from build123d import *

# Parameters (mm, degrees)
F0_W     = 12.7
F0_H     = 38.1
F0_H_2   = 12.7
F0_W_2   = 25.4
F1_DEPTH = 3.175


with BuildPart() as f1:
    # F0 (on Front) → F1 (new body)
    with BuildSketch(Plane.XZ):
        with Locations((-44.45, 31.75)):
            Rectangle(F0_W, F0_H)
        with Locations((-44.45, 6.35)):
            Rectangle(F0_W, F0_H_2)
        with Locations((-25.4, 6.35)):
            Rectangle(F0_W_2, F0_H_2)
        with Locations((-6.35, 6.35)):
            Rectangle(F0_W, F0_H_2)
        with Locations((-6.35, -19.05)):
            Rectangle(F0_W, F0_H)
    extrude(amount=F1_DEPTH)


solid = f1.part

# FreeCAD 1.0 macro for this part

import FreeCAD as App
import Part
import Sketcher
Q = App.Units.Quantity


def add_polygon(sketch, points):
    """Adds a closed chain of lines whose ends are joined by coincident constraints."""
    first, n = sketch.GeometryCount, len(points)
    for a, b in zip(points, points[1:] + points[:1]):
        sketch.addGeometry(Part.LineSegment(App.Vector(*a, 0), App.Vector(*b, 0)), False)
    for i in range(n):
        sketch.addConstraint(Sketcher.Constraint("Coincident", first + i, 2, first + (i + 1) % n, 1))

doc = App.newDocument("Part")
body = doc.addObject("PartDesign::Body", "Body")

# Sketch on XZ plane
sketch1 = body.newObject("Sketcher::SketchObject", "Sketch")
sketch1.AttachmentSupport = (doc.getObject("XZ_Plane"), [""])
sketch1.MapMode = "FlatFace"
add_polygon(sketch1, [(-51, 51), (-51, 0), (-13, 0), (-13, -38), (0, -38), (0, 13), (-38, 13), (-38, 51)])  # lines 0-7
sketch1.addConstraint(Sketcher.Constraint("Vertical", 0))
sketch1.addConstraint(Sketcher.Constraint("Horizontal", 1))
sketch1.addConstraint(Sketcher.Constraint("Vertical", 2))
sketch1.addConstraint(Sketcher.Constraint("Horizontal", 3))
sketch1.addConstraint(Sketcher.Constraint("Vertical", 4))
sketch1.addConstraint(Sketcher.Constraint("Horizontal", 5))
sketch1.addConstraint(Sketcher.Constraint("Vertical", 6))
sketch1.addConstraint(Sketcher.Constraint("Horizontal", 7))
sketch1.addConstraint(Sketcher.Constraint("PointOnObject", 0, 2, -1))
sketch1.addConstraint(Sketcher.Constraint("PointOnObject", 3, 2, -2))
sketch1.addConstraint(Sketcher.Constraint("Equal", 1, 5))
sketch1.addConstraint(Sketcher.Constraint("Equal", 5, 2))
sketch1.addConstraint(Sketcher.Constraint("Equal", 0, 4))
sketch1.addConstraint(Sketcher.Constraint("DistanceY", 0, 2, 0, 1, Q("2 in")))
sketch1.addConstraint(Sketcher.Constraint("DistanceX", 1, 1, 1, 2, Q("1.5 in")))
sketch1.addConstraint(Sketcher.Constraint("DistanceX", 3, 1, 3, 2, Q("0.5 in")))
pad1 = body.newObject("PartDesign::Pad", "Pad")
pad1.Profile = sketch1
pad1.Length = Q("0.125 in")

doc.recompute()
